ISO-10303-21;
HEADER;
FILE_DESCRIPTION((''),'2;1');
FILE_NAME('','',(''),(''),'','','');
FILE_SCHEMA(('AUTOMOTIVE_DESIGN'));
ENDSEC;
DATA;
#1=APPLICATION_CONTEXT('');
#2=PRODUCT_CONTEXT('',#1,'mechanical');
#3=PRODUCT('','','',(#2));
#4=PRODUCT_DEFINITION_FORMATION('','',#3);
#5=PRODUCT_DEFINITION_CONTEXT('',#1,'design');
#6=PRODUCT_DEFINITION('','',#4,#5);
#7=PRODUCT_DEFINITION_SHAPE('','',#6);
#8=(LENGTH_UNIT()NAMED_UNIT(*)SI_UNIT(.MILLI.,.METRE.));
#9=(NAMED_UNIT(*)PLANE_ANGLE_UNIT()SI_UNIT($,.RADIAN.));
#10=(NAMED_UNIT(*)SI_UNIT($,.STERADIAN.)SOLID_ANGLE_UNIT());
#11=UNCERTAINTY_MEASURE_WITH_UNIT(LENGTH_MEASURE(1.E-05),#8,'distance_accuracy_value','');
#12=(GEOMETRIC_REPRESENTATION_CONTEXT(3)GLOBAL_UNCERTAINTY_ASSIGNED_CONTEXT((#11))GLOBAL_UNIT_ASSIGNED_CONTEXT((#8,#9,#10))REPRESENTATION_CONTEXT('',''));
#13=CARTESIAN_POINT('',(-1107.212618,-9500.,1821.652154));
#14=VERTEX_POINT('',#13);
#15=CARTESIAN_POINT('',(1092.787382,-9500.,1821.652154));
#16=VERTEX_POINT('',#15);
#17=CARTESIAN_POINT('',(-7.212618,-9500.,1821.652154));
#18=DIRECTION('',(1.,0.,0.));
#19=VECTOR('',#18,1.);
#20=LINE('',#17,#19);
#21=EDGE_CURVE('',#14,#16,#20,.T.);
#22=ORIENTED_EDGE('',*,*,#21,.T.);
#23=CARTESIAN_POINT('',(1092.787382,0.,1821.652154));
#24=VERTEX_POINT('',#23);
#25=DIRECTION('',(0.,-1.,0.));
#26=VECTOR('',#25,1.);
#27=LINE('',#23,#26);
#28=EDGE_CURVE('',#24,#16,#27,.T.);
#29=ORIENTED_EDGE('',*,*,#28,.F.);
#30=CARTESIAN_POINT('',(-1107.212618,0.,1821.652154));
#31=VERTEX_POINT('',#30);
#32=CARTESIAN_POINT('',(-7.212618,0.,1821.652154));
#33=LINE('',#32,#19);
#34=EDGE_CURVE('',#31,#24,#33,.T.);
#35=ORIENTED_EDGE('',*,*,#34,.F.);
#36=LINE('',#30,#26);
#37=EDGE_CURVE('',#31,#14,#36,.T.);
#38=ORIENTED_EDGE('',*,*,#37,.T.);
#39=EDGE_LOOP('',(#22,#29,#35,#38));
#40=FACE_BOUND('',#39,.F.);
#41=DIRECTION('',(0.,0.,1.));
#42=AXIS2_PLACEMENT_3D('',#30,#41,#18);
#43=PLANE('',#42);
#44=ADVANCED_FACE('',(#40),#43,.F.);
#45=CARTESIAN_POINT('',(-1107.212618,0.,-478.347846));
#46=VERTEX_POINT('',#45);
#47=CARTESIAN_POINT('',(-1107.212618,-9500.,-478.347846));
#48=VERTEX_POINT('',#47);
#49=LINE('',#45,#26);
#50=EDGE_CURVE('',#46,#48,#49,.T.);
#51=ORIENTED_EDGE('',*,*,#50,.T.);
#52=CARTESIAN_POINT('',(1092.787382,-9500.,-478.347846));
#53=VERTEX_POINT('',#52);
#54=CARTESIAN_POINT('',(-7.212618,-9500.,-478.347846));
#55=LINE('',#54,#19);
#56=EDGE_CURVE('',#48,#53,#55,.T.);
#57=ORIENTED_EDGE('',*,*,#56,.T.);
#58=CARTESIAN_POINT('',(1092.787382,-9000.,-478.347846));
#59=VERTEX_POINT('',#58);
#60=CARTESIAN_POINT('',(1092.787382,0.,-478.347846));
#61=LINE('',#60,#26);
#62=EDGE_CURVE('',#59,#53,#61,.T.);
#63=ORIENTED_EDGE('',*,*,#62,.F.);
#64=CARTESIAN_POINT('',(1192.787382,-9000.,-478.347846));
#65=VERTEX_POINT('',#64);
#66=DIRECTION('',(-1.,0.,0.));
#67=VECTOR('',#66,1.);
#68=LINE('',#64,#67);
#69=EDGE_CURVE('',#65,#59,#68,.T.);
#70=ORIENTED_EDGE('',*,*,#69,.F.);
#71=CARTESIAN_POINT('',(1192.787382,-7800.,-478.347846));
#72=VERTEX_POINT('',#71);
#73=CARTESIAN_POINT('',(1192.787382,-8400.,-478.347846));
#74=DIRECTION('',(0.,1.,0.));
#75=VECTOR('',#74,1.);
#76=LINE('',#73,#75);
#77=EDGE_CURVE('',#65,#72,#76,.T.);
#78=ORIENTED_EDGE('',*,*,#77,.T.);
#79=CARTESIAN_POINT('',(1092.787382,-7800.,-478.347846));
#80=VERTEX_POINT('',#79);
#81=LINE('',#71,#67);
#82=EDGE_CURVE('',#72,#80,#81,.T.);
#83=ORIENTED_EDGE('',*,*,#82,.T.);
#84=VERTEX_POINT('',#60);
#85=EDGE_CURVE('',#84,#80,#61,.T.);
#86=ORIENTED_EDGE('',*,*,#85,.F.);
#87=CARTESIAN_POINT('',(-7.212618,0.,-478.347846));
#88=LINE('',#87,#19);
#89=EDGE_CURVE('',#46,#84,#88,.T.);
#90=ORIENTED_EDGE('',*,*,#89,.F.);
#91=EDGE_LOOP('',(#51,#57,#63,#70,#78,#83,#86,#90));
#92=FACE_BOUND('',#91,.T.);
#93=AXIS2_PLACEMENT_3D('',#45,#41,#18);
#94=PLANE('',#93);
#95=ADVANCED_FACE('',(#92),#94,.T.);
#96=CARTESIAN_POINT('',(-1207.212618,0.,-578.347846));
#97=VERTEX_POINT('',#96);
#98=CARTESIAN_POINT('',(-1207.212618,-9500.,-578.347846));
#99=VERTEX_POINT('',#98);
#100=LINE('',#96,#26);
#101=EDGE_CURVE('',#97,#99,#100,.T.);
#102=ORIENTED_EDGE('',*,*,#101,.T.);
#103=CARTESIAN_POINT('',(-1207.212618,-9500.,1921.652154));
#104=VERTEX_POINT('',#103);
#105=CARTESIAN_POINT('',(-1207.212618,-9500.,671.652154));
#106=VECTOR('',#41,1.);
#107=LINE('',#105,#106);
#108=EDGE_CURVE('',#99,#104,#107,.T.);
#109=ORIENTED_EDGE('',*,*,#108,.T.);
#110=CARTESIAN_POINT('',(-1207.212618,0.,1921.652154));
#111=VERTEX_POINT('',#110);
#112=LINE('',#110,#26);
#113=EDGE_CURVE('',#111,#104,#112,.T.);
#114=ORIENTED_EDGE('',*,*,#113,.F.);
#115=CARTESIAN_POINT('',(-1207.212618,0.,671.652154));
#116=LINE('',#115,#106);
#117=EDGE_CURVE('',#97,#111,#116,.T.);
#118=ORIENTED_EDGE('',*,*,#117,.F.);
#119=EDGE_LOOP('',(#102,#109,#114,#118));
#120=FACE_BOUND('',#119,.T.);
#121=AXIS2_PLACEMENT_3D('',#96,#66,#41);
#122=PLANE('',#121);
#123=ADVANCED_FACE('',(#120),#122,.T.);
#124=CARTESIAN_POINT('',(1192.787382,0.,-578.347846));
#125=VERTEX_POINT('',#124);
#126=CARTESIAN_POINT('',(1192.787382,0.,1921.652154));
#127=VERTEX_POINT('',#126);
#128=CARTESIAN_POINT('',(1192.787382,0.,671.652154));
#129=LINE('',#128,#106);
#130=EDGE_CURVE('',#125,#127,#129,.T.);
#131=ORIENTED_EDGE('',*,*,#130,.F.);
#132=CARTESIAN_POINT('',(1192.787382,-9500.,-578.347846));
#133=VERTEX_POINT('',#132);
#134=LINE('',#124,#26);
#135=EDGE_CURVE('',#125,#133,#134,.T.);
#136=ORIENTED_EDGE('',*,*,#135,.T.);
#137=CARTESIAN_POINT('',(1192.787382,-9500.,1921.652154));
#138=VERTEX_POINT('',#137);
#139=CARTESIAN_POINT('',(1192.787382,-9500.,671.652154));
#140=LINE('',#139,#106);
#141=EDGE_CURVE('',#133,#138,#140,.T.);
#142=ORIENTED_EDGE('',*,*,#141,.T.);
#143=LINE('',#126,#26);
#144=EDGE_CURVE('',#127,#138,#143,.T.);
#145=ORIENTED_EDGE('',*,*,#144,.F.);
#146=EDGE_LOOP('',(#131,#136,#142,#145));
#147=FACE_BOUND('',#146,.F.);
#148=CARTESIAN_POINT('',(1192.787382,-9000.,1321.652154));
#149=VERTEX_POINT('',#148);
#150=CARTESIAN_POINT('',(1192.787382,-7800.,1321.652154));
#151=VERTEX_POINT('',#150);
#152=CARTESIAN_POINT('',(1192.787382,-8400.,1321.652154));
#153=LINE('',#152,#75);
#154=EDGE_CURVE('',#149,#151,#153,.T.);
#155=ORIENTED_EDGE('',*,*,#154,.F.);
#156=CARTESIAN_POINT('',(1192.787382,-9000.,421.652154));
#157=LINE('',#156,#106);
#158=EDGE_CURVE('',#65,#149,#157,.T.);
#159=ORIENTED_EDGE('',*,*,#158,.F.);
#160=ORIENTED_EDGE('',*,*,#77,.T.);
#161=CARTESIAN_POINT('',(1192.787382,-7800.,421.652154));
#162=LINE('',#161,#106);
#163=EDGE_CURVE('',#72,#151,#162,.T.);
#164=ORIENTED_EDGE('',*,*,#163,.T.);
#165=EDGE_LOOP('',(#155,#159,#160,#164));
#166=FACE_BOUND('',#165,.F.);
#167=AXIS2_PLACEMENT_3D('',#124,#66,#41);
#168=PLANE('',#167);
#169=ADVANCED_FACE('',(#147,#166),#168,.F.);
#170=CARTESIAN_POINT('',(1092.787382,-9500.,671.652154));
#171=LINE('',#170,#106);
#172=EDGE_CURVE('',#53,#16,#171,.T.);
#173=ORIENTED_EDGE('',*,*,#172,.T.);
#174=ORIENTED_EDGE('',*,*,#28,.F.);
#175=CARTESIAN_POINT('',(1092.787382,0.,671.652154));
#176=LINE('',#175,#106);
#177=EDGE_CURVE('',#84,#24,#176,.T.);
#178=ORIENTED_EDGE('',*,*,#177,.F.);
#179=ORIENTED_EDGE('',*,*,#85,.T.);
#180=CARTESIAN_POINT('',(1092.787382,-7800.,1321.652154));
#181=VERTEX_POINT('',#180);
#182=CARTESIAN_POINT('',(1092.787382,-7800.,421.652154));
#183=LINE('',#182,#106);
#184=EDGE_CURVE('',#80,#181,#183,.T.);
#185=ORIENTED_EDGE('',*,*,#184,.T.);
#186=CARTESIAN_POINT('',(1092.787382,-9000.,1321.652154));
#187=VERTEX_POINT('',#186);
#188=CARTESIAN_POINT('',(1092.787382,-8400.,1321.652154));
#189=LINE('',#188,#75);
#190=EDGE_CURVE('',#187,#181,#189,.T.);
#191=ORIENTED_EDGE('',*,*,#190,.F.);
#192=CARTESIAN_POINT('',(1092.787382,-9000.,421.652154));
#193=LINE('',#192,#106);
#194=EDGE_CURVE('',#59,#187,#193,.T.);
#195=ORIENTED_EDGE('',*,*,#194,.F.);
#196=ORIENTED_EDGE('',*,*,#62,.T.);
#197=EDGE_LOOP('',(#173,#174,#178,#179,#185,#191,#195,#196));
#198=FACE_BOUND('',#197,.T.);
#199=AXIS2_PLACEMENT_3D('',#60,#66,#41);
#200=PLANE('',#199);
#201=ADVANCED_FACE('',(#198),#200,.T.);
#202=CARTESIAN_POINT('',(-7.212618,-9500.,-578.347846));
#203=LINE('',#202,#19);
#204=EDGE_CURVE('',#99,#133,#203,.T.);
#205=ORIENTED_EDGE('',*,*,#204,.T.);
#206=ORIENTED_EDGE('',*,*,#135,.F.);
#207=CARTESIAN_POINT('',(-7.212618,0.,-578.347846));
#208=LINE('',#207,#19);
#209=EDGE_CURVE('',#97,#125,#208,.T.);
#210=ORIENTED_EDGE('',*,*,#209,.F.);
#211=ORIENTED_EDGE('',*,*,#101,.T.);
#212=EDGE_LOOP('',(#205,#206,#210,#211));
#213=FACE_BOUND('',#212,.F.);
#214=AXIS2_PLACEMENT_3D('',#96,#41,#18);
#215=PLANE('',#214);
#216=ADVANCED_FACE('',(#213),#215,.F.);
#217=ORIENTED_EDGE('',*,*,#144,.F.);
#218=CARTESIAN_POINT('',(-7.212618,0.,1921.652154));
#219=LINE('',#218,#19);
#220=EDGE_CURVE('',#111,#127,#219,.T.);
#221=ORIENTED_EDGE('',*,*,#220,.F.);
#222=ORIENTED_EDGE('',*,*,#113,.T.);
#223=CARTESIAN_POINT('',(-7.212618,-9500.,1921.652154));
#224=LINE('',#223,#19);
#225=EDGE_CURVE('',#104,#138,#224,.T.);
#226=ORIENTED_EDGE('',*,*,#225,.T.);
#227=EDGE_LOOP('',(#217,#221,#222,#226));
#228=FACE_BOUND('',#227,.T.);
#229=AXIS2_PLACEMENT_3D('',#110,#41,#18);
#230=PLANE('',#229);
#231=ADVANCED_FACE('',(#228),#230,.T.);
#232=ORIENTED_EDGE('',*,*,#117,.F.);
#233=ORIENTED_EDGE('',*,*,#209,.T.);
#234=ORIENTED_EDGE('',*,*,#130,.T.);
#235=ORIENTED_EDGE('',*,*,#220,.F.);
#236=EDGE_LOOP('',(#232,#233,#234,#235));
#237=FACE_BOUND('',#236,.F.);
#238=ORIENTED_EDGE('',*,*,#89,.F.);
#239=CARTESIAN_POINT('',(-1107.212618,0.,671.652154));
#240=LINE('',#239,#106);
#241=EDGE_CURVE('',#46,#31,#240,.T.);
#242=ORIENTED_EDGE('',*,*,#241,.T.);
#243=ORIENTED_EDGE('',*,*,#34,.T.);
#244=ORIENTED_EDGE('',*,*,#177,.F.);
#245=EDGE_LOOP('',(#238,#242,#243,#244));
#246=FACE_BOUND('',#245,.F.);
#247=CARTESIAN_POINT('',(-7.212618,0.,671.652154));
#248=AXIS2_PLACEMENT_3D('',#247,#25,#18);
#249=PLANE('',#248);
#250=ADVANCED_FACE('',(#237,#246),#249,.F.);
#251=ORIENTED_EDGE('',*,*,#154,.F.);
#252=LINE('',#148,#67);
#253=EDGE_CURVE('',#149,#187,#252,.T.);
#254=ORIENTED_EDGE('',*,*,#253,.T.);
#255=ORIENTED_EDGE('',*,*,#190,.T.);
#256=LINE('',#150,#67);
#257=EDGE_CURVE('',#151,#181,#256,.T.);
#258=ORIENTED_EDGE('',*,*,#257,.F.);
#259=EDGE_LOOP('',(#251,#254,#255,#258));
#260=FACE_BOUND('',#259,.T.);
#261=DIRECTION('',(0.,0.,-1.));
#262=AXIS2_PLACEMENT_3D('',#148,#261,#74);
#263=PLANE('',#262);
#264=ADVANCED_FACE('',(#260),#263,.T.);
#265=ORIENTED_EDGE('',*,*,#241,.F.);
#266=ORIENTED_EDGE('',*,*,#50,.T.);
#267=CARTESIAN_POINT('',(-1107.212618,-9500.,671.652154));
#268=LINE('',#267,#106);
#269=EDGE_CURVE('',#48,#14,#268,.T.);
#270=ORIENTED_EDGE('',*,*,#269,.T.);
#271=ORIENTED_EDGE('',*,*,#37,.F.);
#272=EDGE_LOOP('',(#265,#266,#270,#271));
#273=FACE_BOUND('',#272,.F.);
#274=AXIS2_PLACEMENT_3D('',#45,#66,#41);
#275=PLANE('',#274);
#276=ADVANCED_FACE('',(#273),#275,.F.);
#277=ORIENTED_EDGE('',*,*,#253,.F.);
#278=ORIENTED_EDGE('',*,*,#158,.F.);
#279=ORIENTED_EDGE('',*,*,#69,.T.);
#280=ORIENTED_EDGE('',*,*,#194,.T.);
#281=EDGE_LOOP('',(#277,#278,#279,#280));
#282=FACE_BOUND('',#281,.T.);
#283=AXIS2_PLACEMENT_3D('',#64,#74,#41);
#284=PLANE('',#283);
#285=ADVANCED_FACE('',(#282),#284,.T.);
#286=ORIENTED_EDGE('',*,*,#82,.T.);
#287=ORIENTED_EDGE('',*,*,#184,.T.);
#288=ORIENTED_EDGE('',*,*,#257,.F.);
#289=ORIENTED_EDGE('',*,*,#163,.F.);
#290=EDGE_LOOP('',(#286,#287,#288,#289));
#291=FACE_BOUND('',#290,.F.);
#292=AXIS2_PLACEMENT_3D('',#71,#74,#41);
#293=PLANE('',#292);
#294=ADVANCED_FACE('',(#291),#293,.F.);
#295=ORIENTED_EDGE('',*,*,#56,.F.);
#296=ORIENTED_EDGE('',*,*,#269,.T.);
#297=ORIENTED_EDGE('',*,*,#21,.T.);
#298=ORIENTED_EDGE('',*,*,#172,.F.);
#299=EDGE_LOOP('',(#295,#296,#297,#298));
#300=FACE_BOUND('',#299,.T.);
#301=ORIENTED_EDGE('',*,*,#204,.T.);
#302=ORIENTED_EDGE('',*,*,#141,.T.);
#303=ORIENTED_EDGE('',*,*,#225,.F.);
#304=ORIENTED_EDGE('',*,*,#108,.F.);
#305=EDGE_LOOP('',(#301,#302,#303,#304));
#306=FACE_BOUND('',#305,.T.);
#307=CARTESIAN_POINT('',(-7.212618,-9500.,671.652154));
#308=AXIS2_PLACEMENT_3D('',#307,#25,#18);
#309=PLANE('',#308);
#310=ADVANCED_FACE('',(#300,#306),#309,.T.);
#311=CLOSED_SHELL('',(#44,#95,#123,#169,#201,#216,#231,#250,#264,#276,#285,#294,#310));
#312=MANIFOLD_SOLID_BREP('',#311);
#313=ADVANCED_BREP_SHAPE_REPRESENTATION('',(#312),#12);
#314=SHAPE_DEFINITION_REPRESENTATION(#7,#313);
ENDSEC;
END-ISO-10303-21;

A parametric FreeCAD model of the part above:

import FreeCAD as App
import Part
import Sketcher
from FreeCAD import Vector


def add_polygon(sketch, points):
    """Adds a closed chain of lines whose ends are joined by coincident constraints."""
    first, n = sketch.GeometryCount, len(points)
    for a, b in zip(points, points[1:] + points[:1]):
        sketch.addGeometry(Part.LineSegment(App.Vector(*a, 0), App.Vector(*b, 0)), False)
    for i in range(n):
        sketch.addConstraint(Sketcher.Constraint("Coincident", first + i, 2, first + (i + 1) % n, 1))

doc = App.newDocument("Part")
body = doc.addObject("PartDesign::Body", "Body")

sketch1 = body.newObject("Sketcher::SketchObject", "Sketch")
sketch1.AttachmentSupport = (doc.getObject("XZ_Plane"), [""])
sketch1.MapMode = "FlatFace"
add_polygon(sketch1, [(-1207, 1922), (-1207, -578), (1193, -578), (1193, 1922)])
add_polygon(sketch1, [(1093, -478), (-1107, -478), (-1107, 1822), (1093, 1822)])
sketch1.addConstraint(Sketcher.Constraint("Vertical", 0))
sketch1.addConstraint(Sketcher.Constraint("Horizontal", 1))
sketch1.addConstraint(Sketcher.Constraint("Vertical", 2))
sketch1.addConstraint(Sketcher.Constraint("Horizontal", 3))
sketch1.addConstraint(Sketcher.Constraint("Horizontal", 4))
sketch1.addConstraint(Sketcher.Constraint("Vertical", 5))
sketch1.addConstraint(Sketcher.Constraint("Horizontal", 6))
sketch1.addConstraint(Sketcher.Constraint("Vertical", 7))
sketch1.addConstraint(Sketcher.Constraint("DistanceX", 1, 1, 1, 2, 2400.0))
sketch1.addConstraint(Sketcher.Constraint("DistanceX", 4, 2, 4, 1, 2200.0))
sketch1.addConstraint(Sketcher.Constraint("DistanceY", 0, 2, 0, 1, 2500.0))
sketch1.addConstraint(Sketcher.Constraint("DistanceY", 5, 1, 5, 2, 2300.0))
sketch1.addConstraint(Sketcher.Constraint("DistanceX", 0, 2, 4, 2, 100.0))
sketch1.addConstraint(Sketcher.Constraint("DistanceY", 0, 2, 4, 2, 100.0))
sketch1.addConstraint(Sketcher.Constraint("DistanceX", 0, 2, -1, 1, 1207.212618))
sketch1.addConstraint(Sketcher.Constraint("DistanceY", 0, 2, -1, 1, 578.347846))
pad1 = body.newObject("PartDesign::Pad", "Pad")
pad1.Profile = sketch1
pad1.Length = 9500

sketch2 = body.newObject("Sketcher::SketchObject", "Sketch001")
sketch2.AttachmentSupport = (doc.getObject("YZ_Plane"), [""])
sketch2.MapMode = "FlatFace"
sketch2.AttachmentOffset = App.Placement(Vector(0, 0, 1192.787382), App.Rotation())
add_polygon(sketch2, [(-9000, 1322), (-9000, -478), (-7800, -478), (-7800, 1322)])
sketch2.addConstraint(Sketcher.Constraint("Vertical", 0))
sketch2.addConstraint(Sketcher.Constraint("Horizontal", 1))
sketch2.addConstraint(Sketcher.Constraint("Vertical", 2))
sketch2.addConstraint(Sketcher.Constraint("Horizontal", 3))
sketch2.addConstraint(Sketcher.Constraint("DistanceX", 1, 1, 1, 2, 1200.0))
sketch2.addConstraint(Sketcher.Constraint("DistanceY", 0, 2, 0, 1, 1800.0))
sketch2.addConstraint(Sketcher.Constraint("DistanceX", 0, 2, -1, 1, 9000.0))
sketch2.addConstraint(Sketcher.Constraint("DistanceY", 0, 2, -1, 1, 478.347846))
pocket1 = body.newObject("PartDesign::Pocket", "Pocket")
pocket1.Profile = sketch2
pocket1.Length = 100

doc.recompute()
